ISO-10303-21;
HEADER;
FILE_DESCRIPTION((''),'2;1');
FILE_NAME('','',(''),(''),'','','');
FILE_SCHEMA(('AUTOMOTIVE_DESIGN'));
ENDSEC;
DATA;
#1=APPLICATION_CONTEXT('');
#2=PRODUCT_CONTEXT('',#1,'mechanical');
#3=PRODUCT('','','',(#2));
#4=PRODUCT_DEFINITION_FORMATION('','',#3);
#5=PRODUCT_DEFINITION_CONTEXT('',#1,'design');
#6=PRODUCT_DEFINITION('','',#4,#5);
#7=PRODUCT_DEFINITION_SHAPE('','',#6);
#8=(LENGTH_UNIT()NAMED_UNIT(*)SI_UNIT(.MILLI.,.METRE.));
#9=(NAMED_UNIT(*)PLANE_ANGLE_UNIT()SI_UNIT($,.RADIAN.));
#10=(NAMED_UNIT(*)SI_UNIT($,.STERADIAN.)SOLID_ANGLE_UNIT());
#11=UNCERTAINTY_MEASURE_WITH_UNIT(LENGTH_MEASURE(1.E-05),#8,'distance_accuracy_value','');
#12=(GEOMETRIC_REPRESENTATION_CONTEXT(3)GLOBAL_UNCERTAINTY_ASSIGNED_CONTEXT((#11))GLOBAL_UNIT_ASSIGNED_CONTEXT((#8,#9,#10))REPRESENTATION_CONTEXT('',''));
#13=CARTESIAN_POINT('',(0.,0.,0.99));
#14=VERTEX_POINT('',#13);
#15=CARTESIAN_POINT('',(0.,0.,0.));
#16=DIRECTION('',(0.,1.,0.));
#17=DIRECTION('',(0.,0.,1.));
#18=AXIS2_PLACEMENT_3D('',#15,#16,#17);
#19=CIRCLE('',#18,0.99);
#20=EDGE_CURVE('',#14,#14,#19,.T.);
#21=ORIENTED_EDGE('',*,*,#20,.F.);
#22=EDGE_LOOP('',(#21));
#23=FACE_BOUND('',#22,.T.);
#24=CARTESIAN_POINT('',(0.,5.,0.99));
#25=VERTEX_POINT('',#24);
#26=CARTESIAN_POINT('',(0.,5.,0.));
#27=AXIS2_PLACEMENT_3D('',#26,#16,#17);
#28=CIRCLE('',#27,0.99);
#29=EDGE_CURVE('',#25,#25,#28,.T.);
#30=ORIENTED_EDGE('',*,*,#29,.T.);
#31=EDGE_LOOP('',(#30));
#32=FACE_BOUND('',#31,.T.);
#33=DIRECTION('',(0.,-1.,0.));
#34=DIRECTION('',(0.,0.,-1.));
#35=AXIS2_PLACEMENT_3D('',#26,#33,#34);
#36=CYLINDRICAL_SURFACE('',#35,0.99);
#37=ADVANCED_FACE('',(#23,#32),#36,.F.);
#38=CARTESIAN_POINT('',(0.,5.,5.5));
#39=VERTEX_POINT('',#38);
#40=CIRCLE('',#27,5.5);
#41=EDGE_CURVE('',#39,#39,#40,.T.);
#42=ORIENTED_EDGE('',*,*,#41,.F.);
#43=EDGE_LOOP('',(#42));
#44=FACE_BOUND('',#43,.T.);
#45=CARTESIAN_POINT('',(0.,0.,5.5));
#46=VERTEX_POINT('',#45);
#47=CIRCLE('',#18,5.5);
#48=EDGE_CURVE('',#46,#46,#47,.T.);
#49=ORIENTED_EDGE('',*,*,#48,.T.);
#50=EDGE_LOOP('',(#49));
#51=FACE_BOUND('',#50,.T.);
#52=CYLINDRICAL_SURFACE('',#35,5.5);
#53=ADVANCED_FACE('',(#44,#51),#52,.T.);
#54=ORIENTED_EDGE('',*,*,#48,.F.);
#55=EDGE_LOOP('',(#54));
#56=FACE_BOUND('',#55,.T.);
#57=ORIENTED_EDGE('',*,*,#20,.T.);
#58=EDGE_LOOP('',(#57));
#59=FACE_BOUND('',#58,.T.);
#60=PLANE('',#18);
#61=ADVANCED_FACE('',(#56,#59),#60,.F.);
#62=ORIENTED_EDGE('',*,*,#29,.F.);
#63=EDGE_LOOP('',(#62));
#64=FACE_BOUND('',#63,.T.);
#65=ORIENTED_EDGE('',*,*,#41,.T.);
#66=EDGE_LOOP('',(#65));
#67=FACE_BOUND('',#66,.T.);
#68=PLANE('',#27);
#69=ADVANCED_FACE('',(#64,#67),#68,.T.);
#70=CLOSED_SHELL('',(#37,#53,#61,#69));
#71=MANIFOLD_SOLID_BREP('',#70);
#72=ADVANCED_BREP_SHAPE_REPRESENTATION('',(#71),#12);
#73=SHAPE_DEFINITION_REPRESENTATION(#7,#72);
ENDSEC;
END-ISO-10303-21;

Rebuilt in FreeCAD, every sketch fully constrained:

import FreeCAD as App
import Part
import Sketcher
from FreeCAD import Vector

doc = App.newDocument("Part")
body = doc.addObject("PartDesign::Body", "Body")

# Sketch on XZ plane
sketch1 = body.newObject("Sketcher::SketchObject", "Sketch")
sketch1.AttachmentSupport = (doc.getObject("XZ_Plane"), [""])
sketch1.MapMode = "FlatFace"
sketch1.addGeometry([
    Part.Circle(Vector(0, 0, 0), Vector(0, 0, 1), 5.5),
    Part.Circle(Vector(0, 0, 0), Vector(0, 0, 1), 1),
], False)
sketch1.addConstraint([
    Sketcher.Constraint("Coincident", 0, 3, -1, 1),
    Sketcher.Constraint("Coincident", 1, 3, -1, 1),
    Sketcher.Constraint("Diameter", 0, 11.0),
    Sketcher.Constraint("Diameter", 1, 1.98),
])
pad1 = body.newObject("PartDesign::Pad", "Pad")
pad1.Profile = sketch1
pad1.Length = 5
pad1.Reversed = True

doc.recompute()
